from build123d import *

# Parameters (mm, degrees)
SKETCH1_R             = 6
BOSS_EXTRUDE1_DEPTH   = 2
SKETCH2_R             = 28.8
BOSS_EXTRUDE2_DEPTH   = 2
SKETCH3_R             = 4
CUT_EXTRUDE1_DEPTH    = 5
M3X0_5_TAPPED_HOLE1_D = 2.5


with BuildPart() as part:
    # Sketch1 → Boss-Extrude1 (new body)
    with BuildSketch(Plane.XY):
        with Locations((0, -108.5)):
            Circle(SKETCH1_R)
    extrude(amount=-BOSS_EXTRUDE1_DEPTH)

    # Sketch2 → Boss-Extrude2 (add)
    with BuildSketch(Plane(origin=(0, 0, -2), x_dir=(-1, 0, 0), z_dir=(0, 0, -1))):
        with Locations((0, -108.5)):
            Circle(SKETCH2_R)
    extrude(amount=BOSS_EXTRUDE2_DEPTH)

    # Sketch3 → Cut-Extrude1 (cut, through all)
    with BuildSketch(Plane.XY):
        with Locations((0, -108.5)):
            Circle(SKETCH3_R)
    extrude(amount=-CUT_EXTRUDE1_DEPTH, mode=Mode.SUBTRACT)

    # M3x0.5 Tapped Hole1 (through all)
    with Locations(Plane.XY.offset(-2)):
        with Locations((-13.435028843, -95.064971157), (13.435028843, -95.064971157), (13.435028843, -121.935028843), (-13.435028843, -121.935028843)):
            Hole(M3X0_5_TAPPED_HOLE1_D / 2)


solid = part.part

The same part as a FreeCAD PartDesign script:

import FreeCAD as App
import Part
import Sketcher

V = App.Vector
Q = App.Units.Quantity

doc = App.newDocument("Part")
body = doc.addObject("PartDesign::Body", "Body")

# Sketch on XY plane
sketch1 = body.newObject("Sketcher::SketchObject", "Sketch")
sketch1.AttachmentSupport = (doc.getObject("XY_Plane"), [""])
sketch1.MapMode = "FlatFace"
sketch1.addGeometry(Part.Circle(V(0, -108, 0), V(0, 0, 1), 6), False)
sketch1.addConstraint(Sketcher.Constraint("PointOnObject", 0, 3, -2))
sketch1.addConstraint(Sketcher.Constraint("Diameter", 0, Q("12 mm")))
sketch1.addConstraint(Sketcher.Constraint("DistanceY", 0, 3, -1, 1, Q("108.5 mm")))
pad1 = body.newObject("PartDesign::Pad", "Pad")
pad1.Profile = sketch1
pad1.Length = 2
pad1.Reversed = True

# Sketch on XY plane
sketch2 = body.newObject("Sketcher::SketchObject", "Sketch001")
sketch2.AttachmentSupport = (doc.getObject("XY_Plane"), [""])
sketch2.MapMode = "FlatFace"
sketch2.AttachmentOffset = App.Placement(V(0, 0, -2), App.Rotation())
sketch2.addGeometry(Part.Circle(V(0, -108, 0), V(0, 0, 1), 29), False)
sketch2.addConstraint(Sketcher.Constraint("PointOnObject", 0, 3, -2))
sketch2.addConstraint(Sketcher.Constraint("Diameter", 0, Q("57.6 mm")))
sketch2.addConstraint(Sketcher.Constraint("DistanceY", 0, 3, -1, 1, Q("108.5 mm")))
pad2 = body.newObject("PartDesign::Pad", "Pad001")
pad2.Profile = sketch2
pad2.Length = 2
pad2.Reversed = True

# Sketch on XY plane
sketch3 = body.newObject("Sketcher::SketchObject", "Sketch002")
sketch3.AttachmentSupport = (doc.getObject("XY_Plane"), [""])
sketch3.MapMode = "FlatFace"
sketch3.addGeometry(Part.Circle(V(0, -108.5, 0), V(0, 0, 1), 4), False)
sketch3.addConstraint(Sketcher.Constraint("PointOnObject", 0, 3, -2))
sketch3.addConstraint(Sketcher.Constraint("Diameter", 0, Q("8 mm")))
sketch3.addConstraint(Sketcher.Constraint("DistanceY", 0, 3, -1, 1, Q("108.5 mm")))
pocket1 = body.newObject("PartDesign::Pocket", "Pocket")
pocket1.Profile = sketch3
pocket1.Type = "ThroughAll"

# Sketch on XY plane
sketch4 = body.newObject("Sketcher::SketchObject", "Sketch003")
sketch4.AttachmentSupport = (doc.getObject("XY_Plane"), [""])
sketch4.MapMode = "FlatFace"
sketch4.AttachmentOffset = App.Placement(V(0, 0, -2), App.Rotation())
sketch4.addGeometry(Part.Circle(V(-13.4, -95.1, 0), V(0, 0, 1), 1.2), False)
sketch4.addGeometry(Part.Circle(V(13.4, -95.1, 0), V(0, 0, 1), 1.2), False)
sketch4.addGeometry(Part.Circle(V(13.4, -121.9, 0), V(0, 0, 1), 1.2), False)
sketch4.addGeometry(Part.Circle(V(-13.4, -121.9, 0), V(0, 0, 1), 1.2), False)
sketch4.addConstraint(Sketcher.Constraint("Equal", 0, 1))
sketch4.addConstraint(Sketcher.Constraint("Equal", 1, 2))
sketch4.addConstraint(Sketcher.Constraint("Equal", 2, 3))
sketch4.addConstraint(Sketcher.Constraint("Symmetric", 0, 3, 1, 3, -2))
sketch4.addConstraint(Sketcher.Constraint("Symmetric", 2, 3, 3, 3, -2))
sketch4.addConstraint(Sketcher.Constraint("Vertical", 1, 3, 2, 3))
sketch4.addConstraint(Sketcher.Constraint("Diameter", 0, Q("2.5 mm")))
sketch4.addConstraint(Sketcher.Constraint("DistanceX", 0, 3, -1, 1, Q("13.435029 mm")))
sketch4.addConstraint(Sketcher.Constraint("DistanceY", 0, 3, -1, 1, Q("95.064971 mm")))
sketch4.addConstraint(Sketcher.Constraint("DistanceY", 2, 3, -1, 1, Q("121.935029 mm")))
doc.recompute()
hole = body.newObject("PartDesign::Hole", "Hole")
hole.Profile = sketch4
hole.ThreadType = "None"
hole.Diameter = 2.5
hole.DepthType = "ThroughAll"

doc.recompute()
